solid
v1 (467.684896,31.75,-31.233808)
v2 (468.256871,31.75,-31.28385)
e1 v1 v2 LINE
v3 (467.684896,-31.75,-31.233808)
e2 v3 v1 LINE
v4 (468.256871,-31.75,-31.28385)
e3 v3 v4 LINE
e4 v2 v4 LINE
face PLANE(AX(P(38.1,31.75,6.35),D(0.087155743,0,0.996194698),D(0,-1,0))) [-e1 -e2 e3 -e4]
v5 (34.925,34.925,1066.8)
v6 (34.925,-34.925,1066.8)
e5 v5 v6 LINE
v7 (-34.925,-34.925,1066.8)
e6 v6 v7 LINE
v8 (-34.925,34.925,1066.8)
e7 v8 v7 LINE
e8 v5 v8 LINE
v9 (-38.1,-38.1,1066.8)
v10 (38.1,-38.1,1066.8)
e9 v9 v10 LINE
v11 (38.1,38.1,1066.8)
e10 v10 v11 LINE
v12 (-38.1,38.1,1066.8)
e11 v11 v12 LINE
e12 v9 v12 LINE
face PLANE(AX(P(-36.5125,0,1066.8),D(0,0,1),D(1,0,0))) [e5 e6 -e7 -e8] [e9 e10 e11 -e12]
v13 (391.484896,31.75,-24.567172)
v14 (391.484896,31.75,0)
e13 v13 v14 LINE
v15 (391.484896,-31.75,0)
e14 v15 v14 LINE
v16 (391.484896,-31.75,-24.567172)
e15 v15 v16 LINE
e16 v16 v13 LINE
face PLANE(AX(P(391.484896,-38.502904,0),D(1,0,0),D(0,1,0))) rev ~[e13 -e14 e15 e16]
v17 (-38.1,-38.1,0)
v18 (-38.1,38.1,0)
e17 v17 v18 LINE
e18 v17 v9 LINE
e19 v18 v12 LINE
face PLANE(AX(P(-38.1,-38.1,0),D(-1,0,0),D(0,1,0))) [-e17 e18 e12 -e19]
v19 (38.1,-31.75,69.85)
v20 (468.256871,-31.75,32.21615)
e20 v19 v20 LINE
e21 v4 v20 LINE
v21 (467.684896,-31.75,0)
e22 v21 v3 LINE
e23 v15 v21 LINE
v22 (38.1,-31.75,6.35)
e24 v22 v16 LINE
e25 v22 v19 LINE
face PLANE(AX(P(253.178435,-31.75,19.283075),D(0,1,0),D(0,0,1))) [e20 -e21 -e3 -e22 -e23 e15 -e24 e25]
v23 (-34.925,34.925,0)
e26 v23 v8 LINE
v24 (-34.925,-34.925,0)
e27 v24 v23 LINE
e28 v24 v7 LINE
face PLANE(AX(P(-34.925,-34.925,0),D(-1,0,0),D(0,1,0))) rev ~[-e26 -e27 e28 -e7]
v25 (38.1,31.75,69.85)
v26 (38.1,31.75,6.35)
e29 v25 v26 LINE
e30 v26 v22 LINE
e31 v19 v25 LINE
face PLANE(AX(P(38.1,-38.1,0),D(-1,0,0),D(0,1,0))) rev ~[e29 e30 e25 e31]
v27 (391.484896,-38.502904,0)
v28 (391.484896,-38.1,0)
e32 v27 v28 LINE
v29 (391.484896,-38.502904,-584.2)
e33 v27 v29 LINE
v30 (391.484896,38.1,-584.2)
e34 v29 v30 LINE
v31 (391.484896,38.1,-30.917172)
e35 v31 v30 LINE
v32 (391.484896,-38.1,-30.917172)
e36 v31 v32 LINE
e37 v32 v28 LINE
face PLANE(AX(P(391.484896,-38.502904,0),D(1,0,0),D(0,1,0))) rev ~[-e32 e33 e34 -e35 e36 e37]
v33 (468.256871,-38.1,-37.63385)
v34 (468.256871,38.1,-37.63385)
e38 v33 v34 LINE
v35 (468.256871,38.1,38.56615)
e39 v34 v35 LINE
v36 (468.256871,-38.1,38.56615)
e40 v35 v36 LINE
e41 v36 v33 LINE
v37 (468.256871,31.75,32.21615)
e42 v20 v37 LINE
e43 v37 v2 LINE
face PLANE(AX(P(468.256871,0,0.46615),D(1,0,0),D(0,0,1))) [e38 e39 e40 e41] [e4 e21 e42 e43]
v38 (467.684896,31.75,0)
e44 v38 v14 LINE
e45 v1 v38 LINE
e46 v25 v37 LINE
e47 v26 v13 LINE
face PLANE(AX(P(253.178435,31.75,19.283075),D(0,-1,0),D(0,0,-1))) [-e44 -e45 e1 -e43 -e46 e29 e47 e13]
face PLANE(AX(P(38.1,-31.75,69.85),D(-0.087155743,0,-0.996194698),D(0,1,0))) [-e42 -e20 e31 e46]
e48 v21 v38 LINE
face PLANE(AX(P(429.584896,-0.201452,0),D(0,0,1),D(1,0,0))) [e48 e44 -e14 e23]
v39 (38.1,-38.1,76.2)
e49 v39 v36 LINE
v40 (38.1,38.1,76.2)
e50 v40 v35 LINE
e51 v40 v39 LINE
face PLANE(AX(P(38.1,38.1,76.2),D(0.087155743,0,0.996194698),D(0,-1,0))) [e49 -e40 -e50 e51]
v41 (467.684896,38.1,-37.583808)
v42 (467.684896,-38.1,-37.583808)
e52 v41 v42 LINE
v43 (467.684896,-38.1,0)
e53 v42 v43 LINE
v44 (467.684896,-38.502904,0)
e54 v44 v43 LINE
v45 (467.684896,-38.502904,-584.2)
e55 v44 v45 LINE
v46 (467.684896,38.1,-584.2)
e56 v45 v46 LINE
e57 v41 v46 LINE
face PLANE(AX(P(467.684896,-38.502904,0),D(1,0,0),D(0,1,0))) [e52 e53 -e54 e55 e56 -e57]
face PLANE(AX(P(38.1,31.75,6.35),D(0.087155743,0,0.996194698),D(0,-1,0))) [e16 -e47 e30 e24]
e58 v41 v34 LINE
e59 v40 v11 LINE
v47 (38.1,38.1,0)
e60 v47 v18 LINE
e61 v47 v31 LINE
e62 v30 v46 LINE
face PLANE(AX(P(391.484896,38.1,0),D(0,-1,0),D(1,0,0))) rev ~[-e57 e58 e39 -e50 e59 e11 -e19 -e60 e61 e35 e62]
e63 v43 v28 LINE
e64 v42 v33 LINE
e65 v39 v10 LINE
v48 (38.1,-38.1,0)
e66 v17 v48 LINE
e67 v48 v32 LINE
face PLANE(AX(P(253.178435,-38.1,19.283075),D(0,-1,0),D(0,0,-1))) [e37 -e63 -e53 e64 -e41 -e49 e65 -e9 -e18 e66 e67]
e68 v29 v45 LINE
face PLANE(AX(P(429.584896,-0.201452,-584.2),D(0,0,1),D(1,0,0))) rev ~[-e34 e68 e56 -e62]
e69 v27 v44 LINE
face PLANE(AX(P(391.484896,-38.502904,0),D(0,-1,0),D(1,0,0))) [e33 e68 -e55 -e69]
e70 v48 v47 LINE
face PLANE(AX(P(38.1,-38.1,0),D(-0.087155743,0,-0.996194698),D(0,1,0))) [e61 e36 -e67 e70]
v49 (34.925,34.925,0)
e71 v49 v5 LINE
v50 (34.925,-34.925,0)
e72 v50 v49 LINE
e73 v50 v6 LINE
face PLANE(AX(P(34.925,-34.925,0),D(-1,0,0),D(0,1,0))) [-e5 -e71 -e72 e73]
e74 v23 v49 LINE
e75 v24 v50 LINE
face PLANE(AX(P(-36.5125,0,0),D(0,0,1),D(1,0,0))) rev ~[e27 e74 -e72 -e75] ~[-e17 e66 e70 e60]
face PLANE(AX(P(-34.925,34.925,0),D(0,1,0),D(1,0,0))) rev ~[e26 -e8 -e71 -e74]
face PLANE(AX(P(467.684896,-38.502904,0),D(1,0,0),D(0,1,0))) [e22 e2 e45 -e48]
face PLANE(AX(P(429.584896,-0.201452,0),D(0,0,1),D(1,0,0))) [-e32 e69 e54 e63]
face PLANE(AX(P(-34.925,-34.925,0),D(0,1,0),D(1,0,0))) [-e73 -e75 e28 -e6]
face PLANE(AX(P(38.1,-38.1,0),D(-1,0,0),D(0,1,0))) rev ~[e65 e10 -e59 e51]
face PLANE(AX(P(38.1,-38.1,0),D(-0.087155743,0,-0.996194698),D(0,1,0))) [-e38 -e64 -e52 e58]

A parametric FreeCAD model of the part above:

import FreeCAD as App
import Part
import Sketcher
from FreeCAD import Vector
Q = App.Units.Quantity

doc = App.newDocument("Part")
body = doc.addObject("PartDesign::Body", "Body")

sketch1 = body.newObject("Sketcher::SketchObject", "Sketch")
sketch1.AttachmentSupport = (doc.getObject("XY_Plane"), [""])
sketch1.MapMode = "FlatFace"
sketch1.addGeometry([
    Part.LineSegment(Vector(-38.1, 38.1, 0), Vector(-38.1, -38.1, 0)),
    Part.LineSegment(Vector(-38.1, -38.1, 0), Vector(38.1, -38.1, 0)),
    Part.LineSegment(Vector(38.1, -38.1, 0), Vector(38.1, 38.1, 0)),
    Part.LineSegment(Vector(38.1, 38.1, 0), Vector(-38.1, 38.1, 0)),
], False)
sketch1.addConstraint([
    Sketcher.Constraint("Coincident", 0, 2, 1, 1),
    Sketcher.Constraint("Coincident", 1, 2, 2, 1),
    Sketcher.Constraint("Coincident", 2, 2, 3, 1),
    Sketcher.Constraint("Coincident", 3, 2, 0, 1),
    Sketcher.Constraint("Vertical", 0),
    Sketcher.Constraint("Horizontal", 1),
    Sketcher.Constraint("Vertical", 2),
    Sketcher.Constraint("Horizontal", 3),
    Sketcher.Constraint("Symmetric", 0, 2, 2, 2, -1, 1),
    Sketcher.Constraint("Equal", 3, 0),
    Sketcher.Constraint("DistanceX", 1, 1, 1, 2, Q("3 in")),
])
pad1 = body.newObject("PartDesign::Pad", "Pad")
pad1.Profile = sketch1
pad1.Length = Q("42 in")

sketch2 = body.newObject("Sketcher::SketchObject", "Sketch001")
sketch2.AttachmentSupport = (doc.getObject("YZ_Plane"), [""])
sketch2.MapMode = "FlatFace"
sketch2.AttachmentOffset = App.Placement(Vector(0, 0, 1.5 * 25.4), App.Rotation())
sketch2.addGeometry([
    Part.LineSegment(Vector(-38.1, 0, 0), Vector(38.1, 0, 0)),
    Part.LineSegment(Vector(38.1, 0, 0), Vector(38.1, 76.2, 0)),
    Part.LineSegment(Vector(38.1, 76.2, 0), Vector(-38.1, 76.2, 0)),
    Part.LineSegment(Vector(-38.1, 76.2, 0), Vector(-38.1, 0, 0)),
    Part.LineSegment(Vector(31.75, 69.85, 0), Vector(31.75, 6.35, 0)),
    Part.LineSegment(Vector(31.75, 6.35, 0), Vector(-31.75, 6.35, 0)),
    Part.LineSegment(Vector(-31.75, 6.35, 0), Vector(-31.75, 69.85, 0)),
    Part.LineSegment(Vector(-31.75, 69.85, 0), Vector(31.75, 69.85, 0)),
], False)
sketch2.addConstraint([
    Sketcher.Constraint("Coincident", 0, 2, 1, 1),
    Sketcher.Constraint("Coincident", 1, 2, 2, 1),
    Sketcher.Constraint("Coincident", 2, 2, 3, 1),
    Sketcher.Constraint("Coincident", 3, 2, 0, 1),
    Sketcher.Constraint("Coincident", 4, 2, 5, 1),
    Sketcher.Constraint("Coincident", 5, 2, 6, 1),
    Sketcher.Constraint("Coincident", 6, 2, 7, 1),
    Sketcher.Constraint("Coincident", 7, 2, 4, 1),
    Sketcher.Constraint("Horizontal", 0),
    Sketcher.Constraint("Vertical", 1),
    Sketcher.Constraint("Horizontal", 2),
    Sketcher.Constraint("Vertical", 3),
    Sketcher.Constraint("Vertical", 4),
    Sketcher.Constraint("Horizontal", 5),
    Sketcher.Constraint("Vertical", 6),
    Sketcher.Constraint("Horizontal", 7),
    Sketcher.Constraint("Symmetric", 0, 2, 3, 2, -1, 1),
    Sketcher.Constraint("Equal", 2, 1),
    Sketcher.Constraint("Equal", 7, 4),
    Sketcher.Constraint("DistanceX", 0, 1, 0, 2, Q("3 in")),
    Sketcher.Constraint("DistanceX", 5, 2, 5, 1, Q("2.5 in")),
    Sketcher.Constraint("DistanceX", -1, 1, 4, 2, Q("1.25 in")),
    Sketcher.Constraint("DistanceY", -1, 1, 4, 2, Q("0.25 in")),
])

sketch3 = body.newObject("Sketcher::SketchObject", "Sketch002")
sketch3.Placement = App.Placement(Vector(3.608337, 0, 41.243484), App.Rotation(Vector(0.996194698, 0, -0.087155743), Vector(0, 1, 0), Vector(0.087155743, 0, 0.996194698), "ZXY"))
sketch3.addGeometry(Part.LineSegment(Vector(34.790193, 0, 0), Vector(466.590193, 0, 0)), False)
sketch3.addConstraint([
    Sketcher.Constraint("Horizontal", 0),
    Sketcher.Constraint("PointOnObject", 0, 1, -1),
    Sketcher.Constraint("DistanceX", 0, 1, 0, 2, Q("17 in")),
    Sketcher.Constraint("DistanceX", -1, 1, 0, 1, Q("34.790193 mm")),
])
doc.recompute()

additivepipe = body.newObject("PartDesign::AdditivePipe", "AdditivePipe")
additivepipe.Profile = sketch2
additivepipe.Spine = (sketch3, ["Edge1"])

sketch4 = body.newObject("Sketcher::SketchObject", "Sketch003")
sketch4.AttachmentSupport = (doc.getObject("XY_Plane"), [""])
sketch4.MapMode = "FlatFace"
sketch4.addGeometry([
    Part.LineSegment(Vector(-34.925, 34.925, 0), Vector(-34.925, -34.925, 0)),
    Part.LineSegment(Vector(-34.925, -34.925, 0), Vector(34.925, -34.925, 0)),
    Part.LineSegment(Vector(34.925, -34.925, 0), Vector(34.925, 34.925, 0)),
    Part.LineSegment(Vector(34.925, 34.925, 0), Vector(-34.925, 34.925, 0)),
], False)
sketch4.addConstraint([
    Sketcher.Constraint("Coincident", 0, 2, 1, 1),
    Sketcher.Constraint("Coincident", 1, 2, 2, 1),
    Sketcher.Constraint("Coincident", 2, 2, 3, 1),
    Sketcher.Constraint("Coincident", 3, 2, 0, 1),
    Sketcher.Constraint("Vertical", 0),
    Sketcher.Constraint("Horizontal", 1),
    Sketcher.Constraint("Vertical", 2),
    Sketcher.Constraint("Horizontal", 3),
    Sketcher.Constraint("Symmetric", 0, 2, 2, 2, -1, 1),
    Sketcher.Constraint("Equal", 3, 0),
    Sketcher.Constraint("DistanceX", 1, 1, 1, 2, Q("2.75 in")),
])
pocket1 = body.newObject("PartDesign::Pocket", "Pocket")
pocket1.Profile = sketch4
pocket1.Type = "ThroughAll"
pocket1.Reversed = True

sketch5 = body.newObject("Sketcher::SketchObject", "Sketch004")
sketch5.AttachmentSupport = (doc.getObject("XY_Plane"), [""])
sketch5.MapMode = "FlatFace"
sketch5.addGeometry([
    Part.LineSegment(Vector(391.484896, 38.1, 0), Vector(391.484896, -38.502904, 0)),
    Part.LineSegment(Vector(391.484896, -38.502904, 0), Vector(467.684896, -38.502904, 0)),
    Part.LineSegment(Vector(467.684896, -38.502904, 0), Vector(467.684896, 38.1, 0)),
    Part.LineSegment(Vector(467.684896, 38.1, 0), Vector(391.484896, 38.1, 0)),
], False)
sketch5.addConstraint([
    Sketcher.Constraint("Coincident", 0, 2, 1, 1),
    Sketcher.Constraint("Coincident", 1, 2, 2, 1),
    Sketcher.Constraint("Coincident", 2, 2, 3, 1),
    Sketcher.Constraint("Coincident", 3, 2, 0, 1),
    Sketcher.Constraint("Vertical", 0),
    Sketcher.Constraint("Horizontal", 1),
    Sketcher.Constraint("Vertical", 2),
    Sketcher.Constraint("Horizontal", 3),
    Sketcher.Constraint("DistanceX", 1, 1, 1, 2, Q("3 in")),
    Sketcher.Constraint("DistanceY", -1, 1, 2, 2, Q("1.5 in")),
    Sketcher.Constraint("DistanceY", 0, 2, 0, 1, Q("76.602904 mm")),
    Sketcher.Constraint("DistanceX", -1, 1, 0, 2, Q("391.484896 mm")),
])
pad2 = body.newObject("PartDesign::Pad", "Pad001")
pad2.Profile = sketch5
pad2.Length = Q("23 in")
pad2.Reversed = True

doc.recompute()
